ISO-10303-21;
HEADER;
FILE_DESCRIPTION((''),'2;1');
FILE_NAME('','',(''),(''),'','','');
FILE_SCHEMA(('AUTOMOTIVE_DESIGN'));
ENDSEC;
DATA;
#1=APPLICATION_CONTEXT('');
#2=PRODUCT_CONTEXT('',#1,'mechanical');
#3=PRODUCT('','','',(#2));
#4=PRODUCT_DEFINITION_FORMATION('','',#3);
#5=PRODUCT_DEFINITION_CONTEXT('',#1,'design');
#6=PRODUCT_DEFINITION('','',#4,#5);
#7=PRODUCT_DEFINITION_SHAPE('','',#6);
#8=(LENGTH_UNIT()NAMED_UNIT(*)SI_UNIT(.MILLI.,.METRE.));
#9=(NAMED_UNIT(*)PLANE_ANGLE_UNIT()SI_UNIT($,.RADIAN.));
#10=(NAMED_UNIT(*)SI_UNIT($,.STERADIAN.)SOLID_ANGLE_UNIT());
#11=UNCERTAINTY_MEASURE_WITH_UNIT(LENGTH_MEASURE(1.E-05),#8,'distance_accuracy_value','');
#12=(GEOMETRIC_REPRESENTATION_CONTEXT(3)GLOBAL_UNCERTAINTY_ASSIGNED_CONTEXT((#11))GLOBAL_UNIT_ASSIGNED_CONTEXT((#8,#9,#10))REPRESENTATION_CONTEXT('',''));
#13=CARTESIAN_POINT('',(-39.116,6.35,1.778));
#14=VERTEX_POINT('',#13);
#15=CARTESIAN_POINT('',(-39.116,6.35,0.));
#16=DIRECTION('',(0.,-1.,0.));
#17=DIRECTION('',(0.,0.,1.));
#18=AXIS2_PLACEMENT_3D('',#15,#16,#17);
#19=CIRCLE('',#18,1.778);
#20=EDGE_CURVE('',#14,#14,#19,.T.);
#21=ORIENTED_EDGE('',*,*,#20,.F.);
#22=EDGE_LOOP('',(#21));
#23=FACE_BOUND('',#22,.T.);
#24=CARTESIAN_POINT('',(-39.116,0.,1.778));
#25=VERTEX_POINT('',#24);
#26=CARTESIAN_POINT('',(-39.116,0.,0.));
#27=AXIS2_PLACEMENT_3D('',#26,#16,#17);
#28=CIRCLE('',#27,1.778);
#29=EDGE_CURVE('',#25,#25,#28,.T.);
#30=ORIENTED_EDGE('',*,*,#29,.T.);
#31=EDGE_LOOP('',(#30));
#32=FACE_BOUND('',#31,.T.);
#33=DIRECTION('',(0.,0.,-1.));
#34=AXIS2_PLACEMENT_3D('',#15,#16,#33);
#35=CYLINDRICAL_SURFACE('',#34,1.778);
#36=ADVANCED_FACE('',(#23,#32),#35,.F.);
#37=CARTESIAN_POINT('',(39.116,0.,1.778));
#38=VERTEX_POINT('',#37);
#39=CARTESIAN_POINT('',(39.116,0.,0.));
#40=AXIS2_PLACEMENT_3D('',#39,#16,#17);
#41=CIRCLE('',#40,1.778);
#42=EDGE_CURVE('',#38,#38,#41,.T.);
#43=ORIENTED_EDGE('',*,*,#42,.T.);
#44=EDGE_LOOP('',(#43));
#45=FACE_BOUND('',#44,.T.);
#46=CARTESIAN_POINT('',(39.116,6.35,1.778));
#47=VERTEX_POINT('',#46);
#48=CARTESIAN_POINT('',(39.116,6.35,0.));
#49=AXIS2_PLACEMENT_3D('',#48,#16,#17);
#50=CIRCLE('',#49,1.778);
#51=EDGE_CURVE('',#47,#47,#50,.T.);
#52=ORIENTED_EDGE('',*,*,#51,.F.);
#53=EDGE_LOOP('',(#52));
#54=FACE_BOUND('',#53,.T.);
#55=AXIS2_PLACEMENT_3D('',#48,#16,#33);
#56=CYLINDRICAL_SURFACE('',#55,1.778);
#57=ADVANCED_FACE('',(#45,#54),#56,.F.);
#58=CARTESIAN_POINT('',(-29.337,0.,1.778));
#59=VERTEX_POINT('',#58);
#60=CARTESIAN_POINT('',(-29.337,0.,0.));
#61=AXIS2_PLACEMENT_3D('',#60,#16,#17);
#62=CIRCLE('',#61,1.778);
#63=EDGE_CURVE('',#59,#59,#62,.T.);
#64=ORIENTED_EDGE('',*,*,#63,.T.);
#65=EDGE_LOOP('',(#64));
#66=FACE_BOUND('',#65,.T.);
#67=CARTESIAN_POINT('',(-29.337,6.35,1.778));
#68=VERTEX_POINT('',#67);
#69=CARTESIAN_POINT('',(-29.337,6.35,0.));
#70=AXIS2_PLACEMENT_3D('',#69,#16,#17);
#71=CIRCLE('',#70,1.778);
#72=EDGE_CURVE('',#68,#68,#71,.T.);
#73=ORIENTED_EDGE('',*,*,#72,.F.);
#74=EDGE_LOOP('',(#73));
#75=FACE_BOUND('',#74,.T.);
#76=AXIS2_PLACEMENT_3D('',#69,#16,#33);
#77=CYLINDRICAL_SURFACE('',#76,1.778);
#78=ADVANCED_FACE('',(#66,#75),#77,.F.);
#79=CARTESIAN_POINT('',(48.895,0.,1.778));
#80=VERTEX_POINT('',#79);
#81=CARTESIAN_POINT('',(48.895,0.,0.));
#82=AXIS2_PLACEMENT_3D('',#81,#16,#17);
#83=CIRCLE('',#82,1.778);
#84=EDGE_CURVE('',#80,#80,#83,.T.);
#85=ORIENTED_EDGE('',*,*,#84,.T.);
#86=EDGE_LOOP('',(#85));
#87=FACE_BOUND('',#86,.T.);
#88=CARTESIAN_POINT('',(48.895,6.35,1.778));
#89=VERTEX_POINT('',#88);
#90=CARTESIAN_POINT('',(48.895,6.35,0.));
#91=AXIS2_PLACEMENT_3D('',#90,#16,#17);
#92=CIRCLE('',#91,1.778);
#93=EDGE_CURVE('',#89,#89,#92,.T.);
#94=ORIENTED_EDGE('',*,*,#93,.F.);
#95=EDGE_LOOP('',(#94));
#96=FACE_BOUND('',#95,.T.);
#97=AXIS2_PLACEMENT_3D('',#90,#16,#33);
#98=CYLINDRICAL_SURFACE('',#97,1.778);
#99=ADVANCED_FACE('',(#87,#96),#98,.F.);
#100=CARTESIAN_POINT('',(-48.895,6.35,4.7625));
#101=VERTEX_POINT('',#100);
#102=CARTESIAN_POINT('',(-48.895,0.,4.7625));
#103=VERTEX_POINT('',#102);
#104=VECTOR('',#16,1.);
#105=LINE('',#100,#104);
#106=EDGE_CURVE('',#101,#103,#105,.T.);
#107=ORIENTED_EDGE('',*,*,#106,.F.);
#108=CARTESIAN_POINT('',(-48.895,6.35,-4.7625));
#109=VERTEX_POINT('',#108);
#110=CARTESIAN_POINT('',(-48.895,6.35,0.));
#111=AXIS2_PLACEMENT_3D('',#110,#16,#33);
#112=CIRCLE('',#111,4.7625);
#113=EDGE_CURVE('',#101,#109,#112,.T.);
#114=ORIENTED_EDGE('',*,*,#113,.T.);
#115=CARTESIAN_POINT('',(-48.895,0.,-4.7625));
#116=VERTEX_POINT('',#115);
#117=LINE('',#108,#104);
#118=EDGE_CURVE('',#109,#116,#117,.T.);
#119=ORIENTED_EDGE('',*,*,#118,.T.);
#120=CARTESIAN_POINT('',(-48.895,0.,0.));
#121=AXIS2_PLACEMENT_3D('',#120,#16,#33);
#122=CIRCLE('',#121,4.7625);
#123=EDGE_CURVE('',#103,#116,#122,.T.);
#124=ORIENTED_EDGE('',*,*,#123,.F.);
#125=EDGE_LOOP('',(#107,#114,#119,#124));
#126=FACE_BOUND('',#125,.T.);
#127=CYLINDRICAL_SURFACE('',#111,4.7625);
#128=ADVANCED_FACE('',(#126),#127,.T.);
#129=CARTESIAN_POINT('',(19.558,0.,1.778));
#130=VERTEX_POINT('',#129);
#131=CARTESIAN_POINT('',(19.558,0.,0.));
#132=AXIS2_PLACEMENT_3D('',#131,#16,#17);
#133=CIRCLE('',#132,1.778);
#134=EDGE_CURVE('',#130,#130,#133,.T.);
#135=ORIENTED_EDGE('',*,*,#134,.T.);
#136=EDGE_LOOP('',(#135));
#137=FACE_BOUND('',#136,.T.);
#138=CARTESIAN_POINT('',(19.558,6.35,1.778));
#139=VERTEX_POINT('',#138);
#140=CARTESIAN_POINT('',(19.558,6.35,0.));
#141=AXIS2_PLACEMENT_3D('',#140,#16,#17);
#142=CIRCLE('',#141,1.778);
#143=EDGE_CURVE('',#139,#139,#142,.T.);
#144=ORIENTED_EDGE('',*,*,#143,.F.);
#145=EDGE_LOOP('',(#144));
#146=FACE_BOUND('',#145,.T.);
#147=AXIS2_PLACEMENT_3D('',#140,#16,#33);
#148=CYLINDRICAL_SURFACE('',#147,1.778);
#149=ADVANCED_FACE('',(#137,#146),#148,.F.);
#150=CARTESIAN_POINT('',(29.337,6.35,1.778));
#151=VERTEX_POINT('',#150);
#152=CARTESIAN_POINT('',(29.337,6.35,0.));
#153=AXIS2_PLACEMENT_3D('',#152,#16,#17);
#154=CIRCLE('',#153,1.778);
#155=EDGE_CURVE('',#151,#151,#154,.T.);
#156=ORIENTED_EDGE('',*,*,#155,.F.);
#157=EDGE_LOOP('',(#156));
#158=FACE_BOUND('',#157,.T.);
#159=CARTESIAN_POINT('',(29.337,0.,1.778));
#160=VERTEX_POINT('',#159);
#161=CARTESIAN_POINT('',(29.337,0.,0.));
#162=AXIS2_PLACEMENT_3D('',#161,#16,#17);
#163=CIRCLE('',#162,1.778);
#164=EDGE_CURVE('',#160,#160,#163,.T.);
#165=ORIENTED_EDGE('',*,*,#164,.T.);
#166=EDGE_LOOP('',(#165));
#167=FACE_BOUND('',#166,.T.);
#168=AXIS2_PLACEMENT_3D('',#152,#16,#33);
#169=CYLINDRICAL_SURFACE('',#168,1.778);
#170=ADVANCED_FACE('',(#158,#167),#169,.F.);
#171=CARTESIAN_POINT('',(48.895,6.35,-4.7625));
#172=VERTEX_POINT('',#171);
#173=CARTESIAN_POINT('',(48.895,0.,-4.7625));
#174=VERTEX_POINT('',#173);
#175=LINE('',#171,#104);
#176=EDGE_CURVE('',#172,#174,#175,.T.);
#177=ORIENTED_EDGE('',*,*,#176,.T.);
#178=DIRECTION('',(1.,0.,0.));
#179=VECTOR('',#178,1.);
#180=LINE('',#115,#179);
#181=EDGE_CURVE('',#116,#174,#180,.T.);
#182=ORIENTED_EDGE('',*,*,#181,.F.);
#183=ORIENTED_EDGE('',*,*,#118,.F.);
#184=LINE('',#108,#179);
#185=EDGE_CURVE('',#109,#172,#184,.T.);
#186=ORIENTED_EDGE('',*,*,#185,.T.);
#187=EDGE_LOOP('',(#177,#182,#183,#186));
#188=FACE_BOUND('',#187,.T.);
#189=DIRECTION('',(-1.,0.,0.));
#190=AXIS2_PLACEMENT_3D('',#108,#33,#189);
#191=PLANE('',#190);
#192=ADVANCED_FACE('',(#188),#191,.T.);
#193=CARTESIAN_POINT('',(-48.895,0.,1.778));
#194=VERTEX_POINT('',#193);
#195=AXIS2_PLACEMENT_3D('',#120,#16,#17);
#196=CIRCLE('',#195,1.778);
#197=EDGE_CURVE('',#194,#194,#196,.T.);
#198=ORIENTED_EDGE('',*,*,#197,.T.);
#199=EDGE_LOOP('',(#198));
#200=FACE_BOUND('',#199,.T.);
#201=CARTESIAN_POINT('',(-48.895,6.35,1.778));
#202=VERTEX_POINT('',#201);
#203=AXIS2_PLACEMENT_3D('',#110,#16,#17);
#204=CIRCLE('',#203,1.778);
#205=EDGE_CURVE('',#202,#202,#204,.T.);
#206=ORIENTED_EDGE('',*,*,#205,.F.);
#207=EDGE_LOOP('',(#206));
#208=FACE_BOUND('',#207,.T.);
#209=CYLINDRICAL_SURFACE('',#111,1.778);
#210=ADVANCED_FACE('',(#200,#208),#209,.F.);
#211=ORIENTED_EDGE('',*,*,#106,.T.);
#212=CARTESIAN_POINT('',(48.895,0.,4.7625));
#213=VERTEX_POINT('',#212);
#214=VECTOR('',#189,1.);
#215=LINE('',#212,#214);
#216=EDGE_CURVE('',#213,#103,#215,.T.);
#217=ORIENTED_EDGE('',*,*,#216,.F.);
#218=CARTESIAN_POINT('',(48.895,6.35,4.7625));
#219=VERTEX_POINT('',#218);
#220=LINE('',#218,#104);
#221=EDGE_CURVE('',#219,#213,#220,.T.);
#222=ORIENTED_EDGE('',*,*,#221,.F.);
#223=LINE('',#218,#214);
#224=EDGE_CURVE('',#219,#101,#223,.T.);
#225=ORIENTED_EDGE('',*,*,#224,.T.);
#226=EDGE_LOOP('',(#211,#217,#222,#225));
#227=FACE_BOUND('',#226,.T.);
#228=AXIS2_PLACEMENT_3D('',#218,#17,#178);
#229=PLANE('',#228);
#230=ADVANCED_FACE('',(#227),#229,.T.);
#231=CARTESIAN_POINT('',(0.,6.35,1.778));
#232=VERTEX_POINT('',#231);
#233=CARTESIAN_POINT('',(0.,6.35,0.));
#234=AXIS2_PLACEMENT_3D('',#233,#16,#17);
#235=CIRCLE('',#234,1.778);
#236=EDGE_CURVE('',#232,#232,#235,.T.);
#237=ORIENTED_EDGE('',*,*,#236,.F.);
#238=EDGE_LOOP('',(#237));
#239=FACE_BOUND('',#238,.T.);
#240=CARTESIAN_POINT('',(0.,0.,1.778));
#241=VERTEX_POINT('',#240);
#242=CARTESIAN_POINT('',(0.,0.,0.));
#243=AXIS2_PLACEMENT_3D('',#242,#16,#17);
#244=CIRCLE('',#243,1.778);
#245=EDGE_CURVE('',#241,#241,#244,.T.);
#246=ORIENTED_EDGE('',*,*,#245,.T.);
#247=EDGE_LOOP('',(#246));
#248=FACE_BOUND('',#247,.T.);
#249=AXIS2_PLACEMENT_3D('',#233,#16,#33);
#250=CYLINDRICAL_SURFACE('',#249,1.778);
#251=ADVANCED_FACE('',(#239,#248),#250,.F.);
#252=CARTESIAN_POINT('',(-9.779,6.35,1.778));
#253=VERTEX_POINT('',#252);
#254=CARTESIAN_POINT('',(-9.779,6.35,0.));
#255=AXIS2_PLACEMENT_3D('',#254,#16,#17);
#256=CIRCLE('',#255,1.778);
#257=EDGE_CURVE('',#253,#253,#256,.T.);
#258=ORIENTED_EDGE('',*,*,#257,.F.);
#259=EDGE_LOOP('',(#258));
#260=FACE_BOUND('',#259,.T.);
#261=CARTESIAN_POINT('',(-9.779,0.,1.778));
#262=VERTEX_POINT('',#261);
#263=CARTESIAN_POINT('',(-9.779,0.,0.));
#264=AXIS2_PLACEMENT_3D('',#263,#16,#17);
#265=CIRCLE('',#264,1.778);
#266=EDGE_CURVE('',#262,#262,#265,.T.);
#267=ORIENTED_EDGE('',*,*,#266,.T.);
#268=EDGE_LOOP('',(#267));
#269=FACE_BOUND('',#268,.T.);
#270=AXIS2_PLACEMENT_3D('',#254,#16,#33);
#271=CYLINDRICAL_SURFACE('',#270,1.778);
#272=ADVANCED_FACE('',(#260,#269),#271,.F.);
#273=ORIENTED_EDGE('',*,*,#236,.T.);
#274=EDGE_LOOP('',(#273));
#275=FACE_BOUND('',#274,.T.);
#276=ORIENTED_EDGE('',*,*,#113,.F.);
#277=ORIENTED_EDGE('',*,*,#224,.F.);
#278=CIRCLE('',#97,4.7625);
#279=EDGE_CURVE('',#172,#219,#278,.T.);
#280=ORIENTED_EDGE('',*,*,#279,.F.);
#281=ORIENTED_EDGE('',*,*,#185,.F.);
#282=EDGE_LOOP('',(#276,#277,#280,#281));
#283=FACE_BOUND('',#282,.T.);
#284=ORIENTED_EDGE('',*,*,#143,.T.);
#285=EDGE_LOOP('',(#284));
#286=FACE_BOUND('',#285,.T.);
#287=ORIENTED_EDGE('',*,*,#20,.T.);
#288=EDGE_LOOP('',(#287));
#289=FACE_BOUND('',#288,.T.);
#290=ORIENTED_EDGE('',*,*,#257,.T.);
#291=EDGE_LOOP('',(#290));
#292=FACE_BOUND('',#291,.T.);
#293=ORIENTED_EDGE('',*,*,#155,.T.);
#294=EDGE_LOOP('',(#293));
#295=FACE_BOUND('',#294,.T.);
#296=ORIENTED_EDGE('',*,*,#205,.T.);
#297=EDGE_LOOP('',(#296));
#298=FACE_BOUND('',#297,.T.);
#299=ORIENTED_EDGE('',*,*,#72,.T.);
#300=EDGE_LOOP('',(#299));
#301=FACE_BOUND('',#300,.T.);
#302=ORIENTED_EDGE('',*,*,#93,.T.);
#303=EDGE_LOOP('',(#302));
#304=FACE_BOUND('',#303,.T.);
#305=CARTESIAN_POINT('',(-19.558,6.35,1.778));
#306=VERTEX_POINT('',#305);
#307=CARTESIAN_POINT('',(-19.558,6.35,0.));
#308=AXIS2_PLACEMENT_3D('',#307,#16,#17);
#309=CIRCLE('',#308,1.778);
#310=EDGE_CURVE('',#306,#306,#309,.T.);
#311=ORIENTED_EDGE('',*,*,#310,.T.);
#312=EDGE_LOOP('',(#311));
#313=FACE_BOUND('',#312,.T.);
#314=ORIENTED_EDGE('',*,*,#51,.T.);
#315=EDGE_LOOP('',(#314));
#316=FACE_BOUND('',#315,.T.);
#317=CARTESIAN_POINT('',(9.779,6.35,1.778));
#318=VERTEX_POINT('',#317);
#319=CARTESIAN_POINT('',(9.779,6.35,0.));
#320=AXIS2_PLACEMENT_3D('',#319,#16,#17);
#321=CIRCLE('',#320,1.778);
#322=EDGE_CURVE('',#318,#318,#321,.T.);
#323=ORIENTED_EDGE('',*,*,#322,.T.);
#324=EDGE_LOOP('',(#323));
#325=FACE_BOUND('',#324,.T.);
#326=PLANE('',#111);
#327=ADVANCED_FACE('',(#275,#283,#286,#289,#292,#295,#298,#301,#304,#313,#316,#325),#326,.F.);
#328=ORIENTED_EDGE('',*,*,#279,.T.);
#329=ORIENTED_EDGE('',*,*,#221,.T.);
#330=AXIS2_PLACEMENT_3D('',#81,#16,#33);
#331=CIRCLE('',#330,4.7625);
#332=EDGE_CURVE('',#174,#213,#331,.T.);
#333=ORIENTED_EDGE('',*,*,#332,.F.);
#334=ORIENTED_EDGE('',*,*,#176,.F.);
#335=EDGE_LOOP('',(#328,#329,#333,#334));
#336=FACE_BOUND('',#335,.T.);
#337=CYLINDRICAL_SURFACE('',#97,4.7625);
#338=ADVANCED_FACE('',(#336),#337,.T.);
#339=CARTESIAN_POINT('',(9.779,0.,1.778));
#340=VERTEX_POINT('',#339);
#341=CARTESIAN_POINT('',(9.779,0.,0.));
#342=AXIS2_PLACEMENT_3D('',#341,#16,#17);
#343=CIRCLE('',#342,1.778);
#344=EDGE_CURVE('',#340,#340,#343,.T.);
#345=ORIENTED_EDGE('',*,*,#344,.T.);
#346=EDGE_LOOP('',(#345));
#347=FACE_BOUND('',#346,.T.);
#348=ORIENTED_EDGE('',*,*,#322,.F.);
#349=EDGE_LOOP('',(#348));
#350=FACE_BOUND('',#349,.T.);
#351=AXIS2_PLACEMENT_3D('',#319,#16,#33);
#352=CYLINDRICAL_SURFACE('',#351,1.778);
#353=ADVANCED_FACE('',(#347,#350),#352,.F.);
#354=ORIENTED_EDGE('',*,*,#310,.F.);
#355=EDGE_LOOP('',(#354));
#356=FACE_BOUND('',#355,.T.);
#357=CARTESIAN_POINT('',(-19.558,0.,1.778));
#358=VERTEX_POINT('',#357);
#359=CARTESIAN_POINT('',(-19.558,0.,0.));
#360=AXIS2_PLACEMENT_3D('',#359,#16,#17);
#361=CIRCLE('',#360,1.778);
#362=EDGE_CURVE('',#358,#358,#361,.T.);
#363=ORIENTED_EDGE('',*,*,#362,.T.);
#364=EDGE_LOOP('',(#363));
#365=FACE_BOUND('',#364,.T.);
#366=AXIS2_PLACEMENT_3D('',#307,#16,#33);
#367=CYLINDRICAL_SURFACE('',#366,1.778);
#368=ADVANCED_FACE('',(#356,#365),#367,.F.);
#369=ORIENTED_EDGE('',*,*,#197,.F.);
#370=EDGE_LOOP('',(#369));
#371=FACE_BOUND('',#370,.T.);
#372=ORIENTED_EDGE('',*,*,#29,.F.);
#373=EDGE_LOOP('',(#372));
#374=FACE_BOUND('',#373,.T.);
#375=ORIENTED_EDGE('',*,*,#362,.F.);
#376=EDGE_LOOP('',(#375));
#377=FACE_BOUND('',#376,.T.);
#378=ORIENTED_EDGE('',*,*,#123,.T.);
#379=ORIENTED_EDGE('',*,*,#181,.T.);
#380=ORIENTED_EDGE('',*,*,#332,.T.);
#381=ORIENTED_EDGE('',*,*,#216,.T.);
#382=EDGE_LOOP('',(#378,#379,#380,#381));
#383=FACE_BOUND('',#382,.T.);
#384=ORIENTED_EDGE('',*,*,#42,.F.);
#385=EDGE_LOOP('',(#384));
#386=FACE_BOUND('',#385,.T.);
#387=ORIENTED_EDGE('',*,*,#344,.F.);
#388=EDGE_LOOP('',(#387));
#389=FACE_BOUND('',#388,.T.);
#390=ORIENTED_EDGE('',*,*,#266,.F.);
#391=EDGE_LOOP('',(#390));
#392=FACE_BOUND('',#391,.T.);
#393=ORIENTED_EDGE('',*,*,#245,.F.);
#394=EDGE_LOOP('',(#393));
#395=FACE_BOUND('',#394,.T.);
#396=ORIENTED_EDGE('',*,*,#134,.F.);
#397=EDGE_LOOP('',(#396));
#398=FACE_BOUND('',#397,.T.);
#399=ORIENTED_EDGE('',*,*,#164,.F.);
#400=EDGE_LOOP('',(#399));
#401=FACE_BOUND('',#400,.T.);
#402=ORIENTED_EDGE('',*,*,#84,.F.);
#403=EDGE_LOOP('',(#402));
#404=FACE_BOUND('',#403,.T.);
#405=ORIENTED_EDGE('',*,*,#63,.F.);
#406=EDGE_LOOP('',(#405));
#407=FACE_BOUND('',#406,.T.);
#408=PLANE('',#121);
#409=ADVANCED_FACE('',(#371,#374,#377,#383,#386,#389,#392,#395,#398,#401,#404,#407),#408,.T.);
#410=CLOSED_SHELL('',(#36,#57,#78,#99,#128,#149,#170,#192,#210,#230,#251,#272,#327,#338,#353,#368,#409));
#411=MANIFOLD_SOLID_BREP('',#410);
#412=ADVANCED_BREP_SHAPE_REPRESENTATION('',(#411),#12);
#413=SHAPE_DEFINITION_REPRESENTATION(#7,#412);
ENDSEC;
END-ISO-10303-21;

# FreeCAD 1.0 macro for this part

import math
import FreeCAD as App
import Part
import Sketcher

V = App.Vector
Q = App.Units.Quantity

doc = App.newDocument("Part")
body = doc.addObject("PartDesign::Body", "Body")

sketch1 = body.newObject("Sketcher::SketchObject", "Sketch")
sketch1.AttachmentSupport = (doc.getObject("XZ_Plane"), [""])
sketch1.MapMode = "FlatFace"
sketch1.addGeometry(Part.LineSegment(V(-48.9, -4.8, 0), V(48.9, -4.8, 0)), False)
sketch1.addGeometry(Part.ArcOfCircle(Part.Circle(V(48.9, 0, 0), V(0, 0, 1), 4.8), math.radians(-90), math.radians(90)), False)
sketch1.addGeometry(Part.LineSegment(V(48.9, 4.8, 0), V(-48.9, 4.8, 0)), False)
sketch1.addGeometry(Part.ArcOfCircle(Part.Circle(V(-48.9, 0, 0), V(0, 0, 1), 4.8), math.radians(90), math.radians(270)), False)
sketch1.addGeometry(Part.Circle(V(-48.9, 0, 0), V(0, 0, 1), 1.8), False)
sketch1.addGeometry(Part.Circle(V(-39.1, 0, 0), V(0, 0, 1), 1.8), False)
sketch1.addGeometry(Part.Circle(V(-29.3, 0, 0), V(0, 0, 1), 1.8), False)
sketch1.addGeometry(Part.Circle(V(-19.6, 0, 0), V(0, 0, 1), 1.8), False)
sketch1.addGeometry(Part.Circle(V(-9.8, 0, 0), V(0, 0, 1), 1.8), False)
sketch1.addGeometry(Part.Circle(V(0, 0, 0), V(0, 0, 1), 1.8), False)
sketch1.addGeometry(Part.Circle(V(9.8, 0, 0), V(0, 0, 1), 1.8), False)
sketch1.addGeometry(Part.Circle(V(19.6, 0, 0), V(0, 0, 1), 1.8), False)
sketch1.addGeometry(Part.Circle(V(29.3, 0, 0), V(0, 0, 1), 1.8), False)
sketch1.addGeometry(Part.Circle(V(39.1, 0, 0), V(0, 0, 1), 1.8), False)
sketch1.addGeometry(Part.Circle(V(48.9, 0, 0), V(0, 0, 1), 1.8), False)
sketch1.addConstraint(Sketcher.Constraint("Tangent", 0, 2, 1, 1))
sketch1.addConstraint(Sketcher.Constraint("Tangent", 1, 2, 2, 1))
sketch1.addConstraint(Sketcher.Constraint("Tangent", 2, 2, 3, 1))
sketch1.addConstraint(Sketcher.Constraint("Tangent", 3, 2, 0, 1))
sketch1.addConstraint(Sketcher.Constraint("Horizontal", 0))
sketch1.addConstraint(Sketcher.Constraint("Horizontal", 2))
sketch1.addConstraint(Sketcher.Constraint("Coincident", 9, 3, -1, 1))
sketch1.addConstraint(Sketcher.Constraint("Coincident", 4, 3, 3, 3))
sketch1.addConstraint(Sketcher.Constraint("Coincident", 14, 3, 1, 3))
sketch1.addConstraint(Sketcher.Constraint("Equal", 4, 5))
sketch1.addConstraint(Sketcher.Constraint("Equal", 5, 6))
sketch1.addConstraint(Sketcher.Constraint("Equal", 6, 7))
sketch1.addConstraint(Sketcher.Constraint("Equal", 7, 8))
sketch1.addConstraint(Sketcher.Constraint("Equal", 8, 9))
sketch1.addConstraint(Sketcher.Constraint("Equal", 9, 10))
sketch1.addConstraint(Sketcher.Constraint("Equal", 10, 11))
sketch1.addConstraint(Sketcher.Constraint("Equal", 11, 12))
sketch1.addConstraint(Sketcher.Constraint("Equal", 12, 13))
sketch1.addConstraint(Sketcher.Constraint("Equal", 13, 14))
sketch1.addConstraint(Sketcher.Constraint("Symmetric", 1, 3, 3, 3, -1, 1))
sketch1.addConstraint(Sketcher.Constraint("Symmetric", 8, 3, 10, 3, -1, 1))
sketch1.addConstraint(Sketcher.Constraint("Symmetric", 7, 3, 11, 3, -1, 1))
sketch1.addConstraint(Sketcher.Constraint("Symmetric", 6, 3, 12, 3, -1, 1))
sketch1.addConstraint(Sketcher.Constraint("Symmetric", 5, 3, 13, 3, -1, 1))
sketch1.addConstraint(Sketcher.Constraint("PointOnObject", 5, 3, -1))
sketch1.addConstraint(Sketcher.Constraint("PointOnObject", 6, 3, -1))
sketch1.addConstraint(Sketcher.Constraint("PointOnObject", 7, 3, -1))
sketch1.addConstraint(Sketcher.Constraint("PointOnObject", 8, 3, -1))
sketch1.addConstraint(Sketcher.Constraint("Diameter", 4, Q("0.14 in")))
sketch1.addConstraint(Sketcher.Constraint("Radius", 1, Q("0.1875 in")))
sketch1.addConstraint(Sketcher.Constraint("DistanceX", 0, 1, 0, 2, Q("3.85 in")))
sketch1.addConstraint(Sketcher.Constraint("DistanceX", 5, 3, -1, 1, Q("1.54 in")))
sketch1.addConstraint(Sketcher.Constraint("DistanceX", 7, 3, -1, 1, Q("0.77 in")))
sketch1.addConstraint(Sketcher.Constraint("DistanceX", 3, 3, 6, 3, Q("0.77 in")))
sketch1.addConstraint(Sketcher.Constraint("DistanceX", 6, 3, 8, 3, Q("0.77 in")))
pad1 = body.newObject("PartDesign::Pad", "Pad")
pad1.Profile = sketch1
pad1.Length = Q("0.25 in")
pad1.Reversed = True

doc.recompute()
